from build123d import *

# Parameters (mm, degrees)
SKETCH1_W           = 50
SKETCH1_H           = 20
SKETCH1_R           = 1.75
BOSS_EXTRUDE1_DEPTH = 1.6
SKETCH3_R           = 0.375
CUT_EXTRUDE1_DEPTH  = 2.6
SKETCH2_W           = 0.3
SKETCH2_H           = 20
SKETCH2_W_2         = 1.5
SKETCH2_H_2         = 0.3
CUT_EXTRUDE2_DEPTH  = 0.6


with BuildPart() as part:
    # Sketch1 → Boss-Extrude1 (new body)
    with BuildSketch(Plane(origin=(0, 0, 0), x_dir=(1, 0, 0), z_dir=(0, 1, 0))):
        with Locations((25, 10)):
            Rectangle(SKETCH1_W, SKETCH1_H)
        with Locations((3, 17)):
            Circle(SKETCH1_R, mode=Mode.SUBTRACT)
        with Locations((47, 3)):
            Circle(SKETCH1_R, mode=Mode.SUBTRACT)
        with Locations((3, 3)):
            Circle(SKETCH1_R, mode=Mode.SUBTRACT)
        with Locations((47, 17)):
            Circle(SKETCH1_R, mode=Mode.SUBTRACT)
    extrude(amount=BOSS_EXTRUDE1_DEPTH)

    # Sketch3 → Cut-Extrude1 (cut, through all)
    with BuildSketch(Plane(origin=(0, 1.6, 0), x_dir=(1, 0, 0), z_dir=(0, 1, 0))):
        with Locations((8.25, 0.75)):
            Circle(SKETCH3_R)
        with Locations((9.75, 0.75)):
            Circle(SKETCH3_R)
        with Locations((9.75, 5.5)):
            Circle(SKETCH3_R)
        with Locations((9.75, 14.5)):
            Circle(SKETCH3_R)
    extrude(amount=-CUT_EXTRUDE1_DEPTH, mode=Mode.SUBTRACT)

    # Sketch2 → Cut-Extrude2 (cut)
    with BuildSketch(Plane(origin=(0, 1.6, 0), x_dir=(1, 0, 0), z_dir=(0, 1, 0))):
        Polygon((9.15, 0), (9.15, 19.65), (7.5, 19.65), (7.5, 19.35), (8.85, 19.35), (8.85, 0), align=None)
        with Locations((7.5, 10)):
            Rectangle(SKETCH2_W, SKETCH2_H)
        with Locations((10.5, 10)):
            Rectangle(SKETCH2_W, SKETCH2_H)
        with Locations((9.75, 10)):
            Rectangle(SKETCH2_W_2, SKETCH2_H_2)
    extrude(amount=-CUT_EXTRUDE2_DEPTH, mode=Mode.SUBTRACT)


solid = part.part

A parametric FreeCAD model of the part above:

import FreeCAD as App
import Part
import Sketcher
from FreeCAD import Vector


def add_polygon(sketch, points):
    """Adds a closed chain of lines whose ends are joined by coincident constraints."""
    first, n = sketch.GeometryCount, len(points)
    for a, b in zip(points, points[1:] + points[:1]):
        sketch.addGeometry(Part.LineSegment(App.Vector(*a, 0), App.Vector(*b, 0)), False)
    for i in range(n):
        sketch.addConstraint(Sketcher.Constraint("Coincident", first + i, 2, first + (i + 1) % n, 1))

doc = App.newDocument("Part")
body = doc.addObject("PartDesign::Body", "Body")

sketch1 = body.newObject("Sketcher::SketchObject", "Sketch")
sketch1.AttachmentSupport = (doc.getObject("XZ_Plane"), [""])
sketch1.MapMode = "FlatFace"
add_polygon(sketch1, [(0, -20), (0, 0), (50, 0), (50, -20)])
sketch1.addGeometry(Part.Circle(Vector(3, -3, 0), Vector(0, 0, 1), 1.8), False)
sketch1.addGeometry(Part.Circle(Vector(47, -3, 0), Vector(0, 0, 1), 1.8), False)
sketch1.addGeometry(Part.Circle(Vector(3, -17, 0), Vector(0, 0, 1), 1.8), False)
sketch1.addGeometry(Part.Circle(Vector(47, -17, 0), Vector(0, 0, 1), 1.8), False)
sketch1.addConstraint([
    Sketcher.Constraint("Vertical", 0),
    Sketcher.Constraint("Horizontal", 1),
    Sketcher.Constraint("Vertical", 2),
    Sketcher.Constraint("Horizontal", 3),
    Sketcher.Constraint("Coincident", 0, 2, -1, 1),
    Sketcher.Constraint("Equal", 4, 5),
    Sketcher.Constraint("Equal", 5, 6),
    Sketcher.Constraint("Equal", 6, 7),
    Sketcher.Constraint("Horizontal", 4, 3, 5, 3),
    Sketcher.Constraint("Horizontal", 6, 3, 7, 3),
    Sketcher.Constraint("Vertical", 4, 3, 6, 3),
    Sketcher.Constraint("Vertical", 5, 3, 7, 3),
    Sketcher.Constraint("Diameter", 4, 3.5),
    Sketcher.Constraint("DistanceX", 1, 1, 1, 2, 50.0),
    Sketcher.Constraint("DistanceY", 0, 1, 0, 2, 20.0),
    Sketcher.Constraint("DistanceX", -1, 1, 4, 3, 3.0),
    Sketcher.Constraint("DistanceY", 4, 3, -1, 1, 3.0),
    Sketcher.Constraint("DistanceX", -1, 1, 5, 3, 47.0),
    Sketcher.Constraint("DistanceY", 6, 3, -1, 1, 17.0),
])
pad1 = body.newObject("PartDesign::Pad", "Pad")
pad1.Profile = sketch1
pad1.Length = 1.6
pad1.Reversed = True

sketch2 = body.newObject("Sketcher::SketchObject", "Sketch001")
sketch2.AttachmentSupport = (doc.getObject("XZ_Plane"), [""])
sketch2.MapMode = "FlatFace"
sketch2.AttachmentOffset = App.Placement(Vector(0, 0, -1.6), App.Rotation())
sketch2.addGeometry([
    Part.Circle(Vector(8.25, -0.75, 0), Vector(0, 0, 1), 0.38),
    Part.Circle(Vector(9.75, -0.75, 0), Vector(0, 0, 1), 0.38),
    Part.Circle(Vector(9.75, -5.5, 0), Vector(0, 0, 1), 0.38),
    Part.Circle(Vector(9.75, -14.5, 0), Vector(0, 0, 1), 0.38),
], False)
sketch2.addConstraint([
    Sketcher.Constraint("Equal", 0, 1),
    Sketcher.Constraint("Equal", 1, 2),
    Sketcher.Constraint("Equal", 2, 3),
    Sketcher.Constraint("Horizontal", 0, 3, 1, 3),
    Sketcher.Constraint("Vertical", 1, 3, 2, 3),
    Sketcher.Constraint("Vertical", 2, 3, 3, 3),
    Sketcher.Constraint("Diameter", 0, 0.75),
    Sketcher.Constraint("DistanceY", 3, 3, 2, 3, 9.0),
    Sketcher.Constraint("DistanceY", 2, 3, -1, 1, 5.5),
    Sketcher.Constraint("DistanceX", 0, 3, 1, 3, 1.5),
    Sketcher.Constraint("DistanceX", -1, 1, 0, 3, 8.25),
    Sketcher.Constraint("DistanceY", 0, 3, -1, 1, 0.75),
])
pocket1 = body.newObject("PartDesign::Pocket", "Pocket")
pocket1.Profile = sketch2
pocket1.Type = "ThroughAll"
pocket1.Reversed = True

sketch3 = body.newObject("Sketcher::SketchObject", "Sketch002")
sketch3.AttachmentSupport = (doc.getObject("XZ_Plane"), [""])
sketch3.MapMode = "FlatFace"
sketch3.AttachmentOffset = App.Placement(Vector(0, 0, -1.6), App.Rotation())
add_polygon(sketch3, [(8.85, -19.35), (8.85, 0), (9.15, 0), (9.15, -9.85), (10.35, -9.85), (10.35, 0), (10.65, 0), (10.65, -20), (10.35, -20), (10.35, -10.15), (9.15, -10.15), (9.15, -19.65), (7.65, -19.65), (7.65, -20), (7.35, -20), (7.35, 0), (7.65, 0), (7.65, -19.35)])
sketch3.addConstraint([
    Sketcher.Constraint("Vertical", 0),
    Sketcher.Constraint("Horizontal", 1),
    Sketcher.Constraint("Vertical", 2),
    Sketcher.Constraint("Horizontal", 3),
    Sketcher.Constraint("Vertical", 4),
    Sketcher.Constraint("Horizontal", 5),
    Sketcher.Constraint("Vertical", 6),
    Sketcher.Constraint("Horizontal", 7),
    Sketcher.Constraint("Vertical", 8),
    Sketcher.Constraint("Horizontal", 9),
    Sketcher.Constraint("Vertical", 10),
    Sketcher.Constraint("Horizontal", 11),
    Sketcher.Constraint("Vertical", 12),
    Sketcher.Constraint("Horizontal", 13),
    Sketcher.Constraint("Vertical", 14),
    Sketcher.Constraint("Horizontal", 15),
    Sketcher.Constraint("Vertical", 16),
    Sketcher.Constraint("Horizontal", 17),
    Sketcher.Constraint("PointOnObject", 0, 2, -1),
    Sketcher.Constraint("PointOnObject", 4, 2, -1),
    Sketcher.Constraint("PointOnObject", 14, 2, -1),
    Sketcher.Constraint("Horizontal", 7, 2, 12, 2),
    Sketcher.Constraint("Vertical", 4, 2, 7, 2),
    Sketcher.Constraint("Vertical", 2, 2, 9, 2),
    Sketcher.Constraint("Vertical", 12, 2, 15, 2),
    Sketcher.Constraint("Equal", 1, 5),
    Sketcher.Constraint("Equal", 7, 13),
    Sketcher.Constraint("Equal", 9, 17),
    Sketcher.Constraint("Equal", 4, 8),
    Sketcher.Constraint("DistanceY", 6, 2, 6, 1, 20.0),
    Sketcher.Constraint("DistanceX", 1, 1, 1, 2, 0.3),
    Sketcher.Constraint("DistanceX", 3, 1, 3, 2, 1.2),
    Sketcher.Constraint("DistanceY", 10, 2, 10, 1, 9.5),
    Sketcher.Constraint("DistanceY", 0, 1, 0, 2, 19.35),
    Sketcher.Constraint("DistanceY", 2, 2, 2, 1, 9.85),
    Sketcher.Constraint("DistanceX", -1, 1, 0, 2, 8.85),
])
pocket2 = body.newObject("PartDesign::Pocket", "Pocket001")
pocket2.Profile = sketch3
pocket2.Length = 0.6
pocket2.Reversed = True

doc.recompute()
